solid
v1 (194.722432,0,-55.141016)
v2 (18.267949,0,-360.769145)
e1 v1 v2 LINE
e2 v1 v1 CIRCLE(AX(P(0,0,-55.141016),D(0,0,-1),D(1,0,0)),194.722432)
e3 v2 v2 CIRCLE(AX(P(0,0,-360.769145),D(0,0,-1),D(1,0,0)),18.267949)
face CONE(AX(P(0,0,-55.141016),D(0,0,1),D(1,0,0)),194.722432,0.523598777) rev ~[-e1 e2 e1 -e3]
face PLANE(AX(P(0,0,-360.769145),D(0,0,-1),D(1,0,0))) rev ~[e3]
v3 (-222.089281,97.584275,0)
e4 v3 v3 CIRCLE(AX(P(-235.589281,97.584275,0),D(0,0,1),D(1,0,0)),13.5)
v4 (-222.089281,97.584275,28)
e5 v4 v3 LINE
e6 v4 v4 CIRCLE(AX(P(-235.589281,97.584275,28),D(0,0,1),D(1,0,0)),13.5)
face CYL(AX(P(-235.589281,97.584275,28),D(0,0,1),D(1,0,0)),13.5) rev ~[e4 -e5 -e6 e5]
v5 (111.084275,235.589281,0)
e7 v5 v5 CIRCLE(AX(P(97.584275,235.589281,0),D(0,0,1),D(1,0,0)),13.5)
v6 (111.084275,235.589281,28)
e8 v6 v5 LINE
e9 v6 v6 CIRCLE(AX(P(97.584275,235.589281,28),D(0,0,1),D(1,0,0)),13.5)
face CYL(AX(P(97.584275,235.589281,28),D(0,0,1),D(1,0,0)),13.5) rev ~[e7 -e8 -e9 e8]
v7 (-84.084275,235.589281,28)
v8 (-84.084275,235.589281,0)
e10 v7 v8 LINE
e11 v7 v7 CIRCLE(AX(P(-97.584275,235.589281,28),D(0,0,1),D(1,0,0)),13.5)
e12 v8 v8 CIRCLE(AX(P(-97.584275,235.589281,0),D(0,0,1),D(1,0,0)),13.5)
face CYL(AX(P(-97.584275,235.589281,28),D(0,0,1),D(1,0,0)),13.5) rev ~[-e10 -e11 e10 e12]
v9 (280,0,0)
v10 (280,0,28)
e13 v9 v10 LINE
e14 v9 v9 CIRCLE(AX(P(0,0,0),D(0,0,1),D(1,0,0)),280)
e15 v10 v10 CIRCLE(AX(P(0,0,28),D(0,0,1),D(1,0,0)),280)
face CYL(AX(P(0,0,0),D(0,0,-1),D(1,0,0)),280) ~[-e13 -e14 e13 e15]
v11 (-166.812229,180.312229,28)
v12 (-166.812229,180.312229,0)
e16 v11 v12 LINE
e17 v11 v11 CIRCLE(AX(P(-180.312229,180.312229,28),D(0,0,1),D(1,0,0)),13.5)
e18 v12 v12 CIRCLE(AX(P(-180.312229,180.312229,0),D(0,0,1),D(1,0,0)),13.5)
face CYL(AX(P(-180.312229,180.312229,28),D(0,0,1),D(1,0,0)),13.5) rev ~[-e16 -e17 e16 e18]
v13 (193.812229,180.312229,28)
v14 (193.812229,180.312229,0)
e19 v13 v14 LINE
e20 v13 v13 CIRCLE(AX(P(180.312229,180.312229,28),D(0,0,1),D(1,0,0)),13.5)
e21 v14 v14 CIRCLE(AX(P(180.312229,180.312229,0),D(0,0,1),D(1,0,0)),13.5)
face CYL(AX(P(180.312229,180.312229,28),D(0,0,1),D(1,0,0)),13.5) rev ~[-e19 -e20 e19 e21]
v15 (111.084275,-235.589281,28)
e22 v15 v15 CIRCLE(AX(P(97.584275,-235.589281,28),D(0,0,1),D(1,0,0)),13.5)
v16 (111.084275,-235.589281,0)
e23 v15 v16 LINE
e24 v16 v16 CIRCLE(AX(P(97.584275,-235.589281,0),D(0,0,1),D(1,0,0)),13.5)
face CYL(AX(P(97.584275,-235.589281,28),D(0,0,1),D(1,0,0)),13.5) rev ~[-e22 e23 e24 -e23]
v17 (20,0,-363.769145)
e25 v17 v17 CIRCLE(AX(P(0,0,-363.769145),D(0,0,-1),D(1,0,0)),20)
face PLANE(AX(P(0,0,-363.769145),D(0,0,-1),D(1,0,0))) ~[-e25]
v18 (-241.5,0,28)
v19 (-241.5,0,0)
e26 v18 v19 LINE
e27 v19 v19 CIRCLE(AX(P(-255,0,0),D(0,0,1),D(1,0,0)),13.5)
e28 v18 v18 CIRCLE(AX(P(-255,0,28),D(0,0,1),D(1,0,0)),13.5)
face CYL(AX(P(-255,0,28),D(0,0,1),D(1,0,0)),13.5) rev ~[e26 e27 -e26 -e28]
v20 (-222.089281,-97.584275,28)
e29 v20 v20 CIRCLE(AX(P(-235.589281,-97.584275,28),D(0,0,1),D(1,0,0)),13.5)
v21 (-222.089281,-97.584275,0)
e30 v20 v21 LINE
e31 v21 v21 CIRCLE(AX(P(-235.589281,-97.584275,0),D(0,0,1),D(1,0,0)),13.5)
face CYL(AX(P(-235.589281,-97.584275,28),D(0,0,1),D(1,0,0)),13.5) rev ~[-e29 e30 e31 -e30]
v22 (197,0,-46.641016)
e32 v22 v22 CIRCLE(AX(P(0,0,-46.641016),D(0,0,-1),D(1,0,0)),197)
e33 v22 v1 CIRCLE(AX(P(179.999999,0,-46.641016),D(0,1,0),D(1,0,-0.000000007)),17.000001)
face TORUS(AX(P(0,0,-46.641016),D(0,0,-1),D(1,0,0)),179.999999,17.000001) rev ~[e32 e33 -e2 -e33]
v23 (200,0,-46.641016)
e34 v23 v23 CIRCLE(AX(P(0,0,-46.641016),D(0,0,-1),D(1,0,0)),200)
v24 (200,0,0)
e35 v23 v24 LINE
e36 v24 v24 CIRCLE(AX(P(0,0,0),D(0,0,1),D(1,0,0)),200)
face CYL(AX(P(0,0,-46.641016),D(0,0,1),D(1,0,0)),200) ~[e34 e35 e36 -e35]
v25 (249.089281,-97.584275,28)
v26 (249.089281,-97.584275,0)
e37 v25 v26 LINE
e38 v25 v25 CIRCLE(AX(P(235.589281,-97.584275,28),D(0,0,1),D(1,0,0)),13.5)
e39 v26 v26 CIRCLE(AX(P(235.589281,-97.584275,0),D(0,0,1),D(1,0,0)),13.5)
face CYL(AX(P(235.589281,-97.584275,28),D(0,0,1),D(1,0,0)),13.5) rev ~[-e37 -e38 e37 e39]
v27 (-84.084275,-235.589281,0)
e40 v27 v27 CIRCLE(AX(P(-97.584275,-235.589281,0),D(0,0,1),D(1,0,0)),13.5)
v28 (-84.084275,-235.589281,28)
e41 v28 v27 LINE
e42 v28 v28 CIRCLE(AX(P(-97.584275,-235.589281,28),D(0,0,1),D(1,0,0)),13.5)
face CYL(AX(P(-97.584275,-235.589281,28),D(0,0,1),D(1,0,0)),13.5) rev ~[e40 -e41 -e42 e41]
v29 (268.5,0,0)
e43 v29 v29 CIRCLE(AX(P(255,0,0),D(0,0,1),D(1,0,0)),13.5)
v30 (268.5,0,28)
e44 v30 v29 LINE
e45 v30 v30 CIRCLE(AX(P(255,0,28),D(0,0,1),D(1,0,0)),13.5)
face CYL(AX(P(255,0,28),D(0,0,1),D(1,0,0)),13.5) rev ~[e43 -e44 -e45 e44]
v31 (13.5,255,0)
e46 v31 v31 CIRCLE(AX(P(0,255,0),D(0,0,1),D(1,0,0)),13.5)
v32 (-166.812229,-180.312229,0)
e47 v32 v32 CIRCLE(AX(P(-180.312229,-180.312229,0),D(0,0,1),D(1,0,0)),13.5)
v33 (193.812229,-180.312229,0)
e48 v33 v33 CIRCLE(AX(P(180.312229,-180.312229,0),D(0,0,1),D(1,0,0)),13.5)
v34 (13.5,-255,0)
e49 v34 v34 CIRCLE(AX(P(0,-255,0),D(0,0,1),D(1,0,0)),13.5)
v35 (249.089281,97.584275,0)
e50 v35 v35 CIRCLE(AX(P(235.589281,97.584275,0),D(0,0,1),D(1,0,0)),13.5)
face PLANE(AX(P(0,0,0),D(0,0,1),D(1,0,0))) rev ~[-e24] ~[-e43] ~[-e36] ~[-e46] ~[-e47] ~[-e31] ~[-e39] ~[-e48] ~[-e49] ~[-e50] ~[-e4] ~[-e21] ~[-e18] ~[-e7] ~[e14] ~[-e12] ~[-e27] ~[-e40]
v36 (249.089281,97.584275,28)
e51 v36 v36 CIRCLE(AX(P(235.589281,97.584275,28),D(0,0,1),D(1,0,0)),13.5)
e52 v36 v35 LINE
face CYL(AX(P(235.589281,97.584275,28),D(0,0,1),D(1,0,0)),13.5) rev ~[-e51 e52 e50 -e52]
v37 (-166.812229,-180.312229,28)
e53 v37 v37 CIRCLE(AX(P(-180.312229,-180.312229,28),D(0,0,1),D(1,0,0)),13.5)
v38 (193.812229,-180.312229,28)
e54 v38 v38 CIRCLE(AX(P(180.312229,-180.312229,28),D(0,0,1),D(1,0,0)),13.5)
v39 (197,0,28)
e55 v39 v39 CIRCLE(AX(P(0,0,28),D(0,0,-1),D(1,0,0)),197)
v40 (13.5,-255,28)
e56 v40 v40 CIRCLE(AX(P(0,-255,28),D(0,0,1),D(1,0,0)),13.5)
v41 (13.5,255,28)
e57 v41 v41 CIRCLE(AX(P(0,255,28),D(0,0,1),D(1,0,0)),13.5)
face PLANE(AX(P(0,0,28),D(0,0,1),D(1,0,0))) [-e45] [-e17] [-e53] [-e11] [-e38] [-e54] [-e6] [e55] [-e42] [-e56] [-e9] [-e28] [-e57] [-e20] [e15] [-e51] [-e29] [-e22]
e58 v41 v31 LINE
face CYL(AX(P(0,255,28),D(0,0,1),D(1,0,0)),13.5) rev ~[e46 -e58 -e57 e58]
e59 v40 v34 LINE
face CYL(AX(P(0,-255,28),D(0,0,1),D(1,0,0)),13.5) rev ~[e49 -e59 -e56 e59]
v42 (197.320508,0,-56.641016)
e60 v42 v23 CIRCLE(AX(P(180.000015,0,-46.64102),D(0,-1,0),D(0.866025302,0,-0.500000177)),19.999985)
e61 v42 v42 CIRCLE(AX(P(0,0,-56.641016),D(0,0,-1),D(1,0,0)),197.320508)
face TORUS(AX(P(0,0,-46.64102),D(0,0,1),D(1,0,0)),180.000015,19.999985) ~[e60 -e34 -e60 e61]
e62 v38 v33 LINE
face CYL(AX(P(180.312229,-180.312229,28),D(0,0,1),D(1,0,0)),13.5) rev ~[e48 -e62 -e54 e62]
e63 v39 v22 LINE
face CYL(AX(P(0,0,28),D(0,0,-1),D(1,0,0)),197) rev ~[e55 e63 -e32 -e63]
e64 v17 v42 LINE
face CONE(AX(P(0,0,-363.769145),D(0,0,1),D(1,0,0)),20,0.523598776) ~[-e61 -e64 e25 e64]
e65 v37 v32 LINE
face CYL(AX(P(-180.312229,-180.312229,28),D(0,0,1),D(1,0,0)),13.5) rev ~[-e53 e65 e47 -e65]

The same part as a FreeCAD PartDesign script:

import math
import FreeCAD as App
import Part
import Sketcher

V = App.Vector
Q = App.Units.Quantity

doc = App.newDocument("Part")
body = doc.addObject("PartDesign::Body", "Body")

sketch1 = doc.addObject("Sketcher::SketchObject", "Sketch")
body.addObject(sketch1)
sketch1.AttachmentSupport = (doc.XY_Plane, [""])
sketch1.MapMode = "FlatFace"
sketch1.addGeometry([
    Part.Circle(V(0, 0, 0), V(0, 0, 1), 280),
    Part.Circle(V(0, 0, 0), V(0, 0, 1), 200),
], False)
sketch1.addConstraint([
    Sketcher.Constraint("Coincident", 0, 3, -1, 1),
    Sketcher.Constraint("Coincident", 1, 3, -1, 1),
    Sketcher.Constraint("Diameter", 0, 560.0),
    Sketcher.Constraint("Diameter", 1, 400.0),
])
pad1 = doc.addObject("PartDesign::Pad", "Pad")
body.addObject(pad1)
pad1.Profile = sketch1
pad1.Length = 28

sketch2 = doc.addObject("Sketcher::SketchObject", "Sketch001")
body.addObject(sketch2)
sketch2.AttachmentSupport = (doc.XZ_Plane, [""])
sketch2.MapMode = "FlatFace"
sketch2.addGeometry([
    Part.LineSegment(V(200, -46.6, 0), V(200, 28, 0)),
    Part.LineSegment(V(200, 28, 0), V(197, 28, 0)),
    Part.LineSegment(V(197, 28, 0), V(197, -46.6, 0)),
    Part.ArcOfCircle(Part.Circle(V(180, -46.6, 0), V(0, 0, 1), 17), math.radians(-30), math.radians(0)),
    Part.LineSegment(V(194.7, -55.1, 0), V(18.3, -360.8, 0)),
    Part.LineSegment(V(18.3, -360.8, 0), V(0, -360.8, 0)),
    Part.LineSegment(V(0, -360.8, 0), V(0, -363.8, 0)),
    Part.LineSegment(V(0, -363.8, 0), V(20, -363.8, 0)),
    Part.LineSegment(V(20, -363.8, 0), V(197.3, -56.6, 0)),
    Part.ArcOfCircle(Part.Circle(V(180, -46.6, 0), V(0, 0, 1), 20), math.radians(-30), math.radians(0)),
], False)
sketch2.addConstraint([
    Sketcher.Constraint("Coincident", 0, 2, 1, 1),
    Sketcher.Constraint("Coincident", 1, 2, 2, 1),
    Sketcher.Constraint("Tangent", 2, 2, 3, 2),
    Sketcher.Constraint("Tangent", 3, 1, 4, 1),
    Sketcher.Constraint("Coincident", 4, 2, 5, 1),
    Sketcher.Constraint("Coincident", 5, 2, 6, 1),
    Sketcher.Constraint("Coincident", 6, 2, 7, 1),
    Sketcher.Constraint("Coincident", 7, 2, 8, 1),
    Sketcher.Constraint("Tangent", 8, 2, 9, 1),
    Sketcher.Constraint("Tangent", 9, 2, 0, 1),
    Sketcher.Constraint("Vertical", 0),
    Sketcher.Constraint("Horizontal", 1),
    Sketcher.Constraint("Vertical", 2),
    Sketcher.Constraint("Horizontal", 5),
    Sketcher.Constraint("Vertical", 6),
    Sketcher.Constraint("Horizontal", 7),
    Sketcher.Constraint("PointOnObject", 5, 2, -2),
    Sketcher.Constraint("Parallel", 4, 8),
    Sketcher.Constraint("Horizontal", 2, 2, 9, 2),
    Sketcher.Constraint("Equal", 1, 6),
    Sketcher.Constraint("Radius", 3, 17.000001),
    Sketcher.Constraint("DistanceX", 1, 2, 1, 1, 3.0),
    Sketcher.Constraint("DistanceX", 7, 1, 7, 2, 20.0),
    Sketcher.Constraint("Angle", 4, Q("-120 deg")),
    Sketcher.Constraint("DistanceX", -1, 1, 3, 3, 179.999999),
    Sketcher.Constraint("DistanceY", -1, 1, 0, 2, 28.0),
    Sketcher.Constraint("DistanceY", 8, 2, 2, 2, 10.0),
    Sketcher.Constraint("DistanceY", 0, 1, 0, 2, 74.641016),
])
revolution = doc.addObject("PartDesign::Revolution", "Revolution")
body.addObject(revolution)
revolution.Profile = sketch2
revolution.ReferenceAxis = (sketch2, ["V_Axis"])
revolution.Angle = 360

sketch3 = doc.addObject("Sketcher::SketchObject", "Sketch002")
body.addObject(sketch3)
sketch3.AttachmentSupport = (doc.XY_Plane, [""])
sketch3.MapMode = "FlatFace"
sketch3.AttachmentOffset = App.Placement(V(0, 0, 28), App.Rotation())
sketch3.addGeometry([
    Part.Circle(V(255, 0, 0), V(0, 0, 1), 14),
    Part.Circle(V(236, 98, 0), V(0, 0, 1), 14),
    Part.Circle(V(180, 180, 0), V(0, 0, 1), 14),
    Part.Circle(V(98, 236, 0), V(0, 0, 1), 14),
    Part.Circle(V(0, 255, 0), V(0, 0, 1), 14),
    Part.Circle(V(-98, 236, 0), V(0, 0, 1), 14),
    Part.Circle(V(-180, 180, 0), V(0, 0, 1), 14),
    Part.Circle(V(-236, 98, 0), V(0, 0, 1), 14),
    Part.Circle(V(-255, 0, 0), V(0, 0, 1), 14),
    Part.Circle(V(-236, -98, 0), V(0, 0, 1), 14),
    Part.Circle(V(-180, -180, 0), V(0, 0, 1), 14),
    Part.Circle(V(-98, -236, 0), V(0, 0, 1), 14),
    Part.Circle(V(0, -255, 0), V(0, 0, 1), 14),
    Part.Circle(V(98, -236, 0), V(0, 0, 1), 14),
    Part.Circle(V(180, -180, 0), V(0, 0, 1), 14),
    Part.Circle(V(236, -98, 0), V(0, 0, 1), 14),
], False)
sketch3.addConstraint([
    Sketcher.Constraint("Equal", 0, 1),
    Sketcher.Constraint("Equal", 1, 2),
    Sketcher.Constraint("Equal", 2, 3),
    Sketcher.Constraint("Equal", 3, 4),
    Sketcher.Constraint("Equal", 4, 5),
    Sketcher.Constraint("Equal", 5, 6),
    Sketcher.Constraint("Equal", 6, 7),
    Sketcher.Constraint("Equal", 7, 8),
    Sketcher.Constraint("Equal", 8, 9),
    Sketcher.Constraint("Equal", 9, 10),
    Sketcher.Constraint("Equal", 10, 11),
    Sketcher.Constraint("Equal", 11, 12),
    Sketcher.Constraint("Equal", 12, 13),
    Sketcher.Constraint("Equal", 13, 14),
    Sketcher.Constraint("Equal", 14, 15),
    Sketcher.Constraint("Symmetric", 0, 3, 8, 3, -1, 1),
    Sketcher.Constraint("Symmetric", 1, 3, 9, 3, -1, 1),
    Sketcher.Constraint("Symmetric", 2, 3, 10, 3, -1, 1),
    Sketcher.Constraint("Symmetric", 3, 3, 11, 3, -1, 1),
    Sketcher.Constraint("Symmetric", 4, 3, 12, 3, -1, 1),
    Sketcher.Constraint("Symmetric", 5, 3, 13, 3, -1, 1),
    Sketcher.Constraint("Symmetric", 6, 3, 14, 3, -1, 1),
    Sketcher.Constraint("Symmetric", 7, 3, 15, 3, -1, 1),
    Sketcher.Constraint("Symmetric", 3, 3, 5, 3, -2),
    Sketcher.Constraint("Symmetric", 2, 3, 6, 3, -2),
    Sketcher.Constraint("Symmetric", 1, 3, 7, 3, -2),
    Sketcher.Constraint("PointOnObject", 0, 3, -1),
    Sketcher.Constraint("PointOnObject", 4, 3, -2),
    Sketcher.Constraint("Diameter", 0, 27.0),
    Sketcher.Constraint("DistanceX", -1, 1, 0, 3, 255.0),
    Sketcher.Constraint("DistanceY", -1, 1, 4, 3, 255.0),
    Sketcher.Constraint("DistanceX", -1, 1, 1, 3, 235.589281),
    Sketcher.Constraint("DistanceX", -1, 1, 2, 3, 180.312229),
    Sketcher.Constraint("DistanceY", -1, 1, 2, 3, 180.312229),
    Sketcher.Constraint("DistanceY", -1, 1, 3, 3, 235.589281),
    Sketcher.Constraint("DistanceX", 5, 3, 3, 3, 195.16855),
    Sketcher.Constraint("DistanceY", 9, 3, 7, 3, 195.16855),
])
pocket1 = doc.addObject("PartDesign::Pocket", "Pocket")
body.addObject(pocket1)
pocket1.Profile = sketch3
pocket1.Type = "ThroughAll"

doc.recompute()
